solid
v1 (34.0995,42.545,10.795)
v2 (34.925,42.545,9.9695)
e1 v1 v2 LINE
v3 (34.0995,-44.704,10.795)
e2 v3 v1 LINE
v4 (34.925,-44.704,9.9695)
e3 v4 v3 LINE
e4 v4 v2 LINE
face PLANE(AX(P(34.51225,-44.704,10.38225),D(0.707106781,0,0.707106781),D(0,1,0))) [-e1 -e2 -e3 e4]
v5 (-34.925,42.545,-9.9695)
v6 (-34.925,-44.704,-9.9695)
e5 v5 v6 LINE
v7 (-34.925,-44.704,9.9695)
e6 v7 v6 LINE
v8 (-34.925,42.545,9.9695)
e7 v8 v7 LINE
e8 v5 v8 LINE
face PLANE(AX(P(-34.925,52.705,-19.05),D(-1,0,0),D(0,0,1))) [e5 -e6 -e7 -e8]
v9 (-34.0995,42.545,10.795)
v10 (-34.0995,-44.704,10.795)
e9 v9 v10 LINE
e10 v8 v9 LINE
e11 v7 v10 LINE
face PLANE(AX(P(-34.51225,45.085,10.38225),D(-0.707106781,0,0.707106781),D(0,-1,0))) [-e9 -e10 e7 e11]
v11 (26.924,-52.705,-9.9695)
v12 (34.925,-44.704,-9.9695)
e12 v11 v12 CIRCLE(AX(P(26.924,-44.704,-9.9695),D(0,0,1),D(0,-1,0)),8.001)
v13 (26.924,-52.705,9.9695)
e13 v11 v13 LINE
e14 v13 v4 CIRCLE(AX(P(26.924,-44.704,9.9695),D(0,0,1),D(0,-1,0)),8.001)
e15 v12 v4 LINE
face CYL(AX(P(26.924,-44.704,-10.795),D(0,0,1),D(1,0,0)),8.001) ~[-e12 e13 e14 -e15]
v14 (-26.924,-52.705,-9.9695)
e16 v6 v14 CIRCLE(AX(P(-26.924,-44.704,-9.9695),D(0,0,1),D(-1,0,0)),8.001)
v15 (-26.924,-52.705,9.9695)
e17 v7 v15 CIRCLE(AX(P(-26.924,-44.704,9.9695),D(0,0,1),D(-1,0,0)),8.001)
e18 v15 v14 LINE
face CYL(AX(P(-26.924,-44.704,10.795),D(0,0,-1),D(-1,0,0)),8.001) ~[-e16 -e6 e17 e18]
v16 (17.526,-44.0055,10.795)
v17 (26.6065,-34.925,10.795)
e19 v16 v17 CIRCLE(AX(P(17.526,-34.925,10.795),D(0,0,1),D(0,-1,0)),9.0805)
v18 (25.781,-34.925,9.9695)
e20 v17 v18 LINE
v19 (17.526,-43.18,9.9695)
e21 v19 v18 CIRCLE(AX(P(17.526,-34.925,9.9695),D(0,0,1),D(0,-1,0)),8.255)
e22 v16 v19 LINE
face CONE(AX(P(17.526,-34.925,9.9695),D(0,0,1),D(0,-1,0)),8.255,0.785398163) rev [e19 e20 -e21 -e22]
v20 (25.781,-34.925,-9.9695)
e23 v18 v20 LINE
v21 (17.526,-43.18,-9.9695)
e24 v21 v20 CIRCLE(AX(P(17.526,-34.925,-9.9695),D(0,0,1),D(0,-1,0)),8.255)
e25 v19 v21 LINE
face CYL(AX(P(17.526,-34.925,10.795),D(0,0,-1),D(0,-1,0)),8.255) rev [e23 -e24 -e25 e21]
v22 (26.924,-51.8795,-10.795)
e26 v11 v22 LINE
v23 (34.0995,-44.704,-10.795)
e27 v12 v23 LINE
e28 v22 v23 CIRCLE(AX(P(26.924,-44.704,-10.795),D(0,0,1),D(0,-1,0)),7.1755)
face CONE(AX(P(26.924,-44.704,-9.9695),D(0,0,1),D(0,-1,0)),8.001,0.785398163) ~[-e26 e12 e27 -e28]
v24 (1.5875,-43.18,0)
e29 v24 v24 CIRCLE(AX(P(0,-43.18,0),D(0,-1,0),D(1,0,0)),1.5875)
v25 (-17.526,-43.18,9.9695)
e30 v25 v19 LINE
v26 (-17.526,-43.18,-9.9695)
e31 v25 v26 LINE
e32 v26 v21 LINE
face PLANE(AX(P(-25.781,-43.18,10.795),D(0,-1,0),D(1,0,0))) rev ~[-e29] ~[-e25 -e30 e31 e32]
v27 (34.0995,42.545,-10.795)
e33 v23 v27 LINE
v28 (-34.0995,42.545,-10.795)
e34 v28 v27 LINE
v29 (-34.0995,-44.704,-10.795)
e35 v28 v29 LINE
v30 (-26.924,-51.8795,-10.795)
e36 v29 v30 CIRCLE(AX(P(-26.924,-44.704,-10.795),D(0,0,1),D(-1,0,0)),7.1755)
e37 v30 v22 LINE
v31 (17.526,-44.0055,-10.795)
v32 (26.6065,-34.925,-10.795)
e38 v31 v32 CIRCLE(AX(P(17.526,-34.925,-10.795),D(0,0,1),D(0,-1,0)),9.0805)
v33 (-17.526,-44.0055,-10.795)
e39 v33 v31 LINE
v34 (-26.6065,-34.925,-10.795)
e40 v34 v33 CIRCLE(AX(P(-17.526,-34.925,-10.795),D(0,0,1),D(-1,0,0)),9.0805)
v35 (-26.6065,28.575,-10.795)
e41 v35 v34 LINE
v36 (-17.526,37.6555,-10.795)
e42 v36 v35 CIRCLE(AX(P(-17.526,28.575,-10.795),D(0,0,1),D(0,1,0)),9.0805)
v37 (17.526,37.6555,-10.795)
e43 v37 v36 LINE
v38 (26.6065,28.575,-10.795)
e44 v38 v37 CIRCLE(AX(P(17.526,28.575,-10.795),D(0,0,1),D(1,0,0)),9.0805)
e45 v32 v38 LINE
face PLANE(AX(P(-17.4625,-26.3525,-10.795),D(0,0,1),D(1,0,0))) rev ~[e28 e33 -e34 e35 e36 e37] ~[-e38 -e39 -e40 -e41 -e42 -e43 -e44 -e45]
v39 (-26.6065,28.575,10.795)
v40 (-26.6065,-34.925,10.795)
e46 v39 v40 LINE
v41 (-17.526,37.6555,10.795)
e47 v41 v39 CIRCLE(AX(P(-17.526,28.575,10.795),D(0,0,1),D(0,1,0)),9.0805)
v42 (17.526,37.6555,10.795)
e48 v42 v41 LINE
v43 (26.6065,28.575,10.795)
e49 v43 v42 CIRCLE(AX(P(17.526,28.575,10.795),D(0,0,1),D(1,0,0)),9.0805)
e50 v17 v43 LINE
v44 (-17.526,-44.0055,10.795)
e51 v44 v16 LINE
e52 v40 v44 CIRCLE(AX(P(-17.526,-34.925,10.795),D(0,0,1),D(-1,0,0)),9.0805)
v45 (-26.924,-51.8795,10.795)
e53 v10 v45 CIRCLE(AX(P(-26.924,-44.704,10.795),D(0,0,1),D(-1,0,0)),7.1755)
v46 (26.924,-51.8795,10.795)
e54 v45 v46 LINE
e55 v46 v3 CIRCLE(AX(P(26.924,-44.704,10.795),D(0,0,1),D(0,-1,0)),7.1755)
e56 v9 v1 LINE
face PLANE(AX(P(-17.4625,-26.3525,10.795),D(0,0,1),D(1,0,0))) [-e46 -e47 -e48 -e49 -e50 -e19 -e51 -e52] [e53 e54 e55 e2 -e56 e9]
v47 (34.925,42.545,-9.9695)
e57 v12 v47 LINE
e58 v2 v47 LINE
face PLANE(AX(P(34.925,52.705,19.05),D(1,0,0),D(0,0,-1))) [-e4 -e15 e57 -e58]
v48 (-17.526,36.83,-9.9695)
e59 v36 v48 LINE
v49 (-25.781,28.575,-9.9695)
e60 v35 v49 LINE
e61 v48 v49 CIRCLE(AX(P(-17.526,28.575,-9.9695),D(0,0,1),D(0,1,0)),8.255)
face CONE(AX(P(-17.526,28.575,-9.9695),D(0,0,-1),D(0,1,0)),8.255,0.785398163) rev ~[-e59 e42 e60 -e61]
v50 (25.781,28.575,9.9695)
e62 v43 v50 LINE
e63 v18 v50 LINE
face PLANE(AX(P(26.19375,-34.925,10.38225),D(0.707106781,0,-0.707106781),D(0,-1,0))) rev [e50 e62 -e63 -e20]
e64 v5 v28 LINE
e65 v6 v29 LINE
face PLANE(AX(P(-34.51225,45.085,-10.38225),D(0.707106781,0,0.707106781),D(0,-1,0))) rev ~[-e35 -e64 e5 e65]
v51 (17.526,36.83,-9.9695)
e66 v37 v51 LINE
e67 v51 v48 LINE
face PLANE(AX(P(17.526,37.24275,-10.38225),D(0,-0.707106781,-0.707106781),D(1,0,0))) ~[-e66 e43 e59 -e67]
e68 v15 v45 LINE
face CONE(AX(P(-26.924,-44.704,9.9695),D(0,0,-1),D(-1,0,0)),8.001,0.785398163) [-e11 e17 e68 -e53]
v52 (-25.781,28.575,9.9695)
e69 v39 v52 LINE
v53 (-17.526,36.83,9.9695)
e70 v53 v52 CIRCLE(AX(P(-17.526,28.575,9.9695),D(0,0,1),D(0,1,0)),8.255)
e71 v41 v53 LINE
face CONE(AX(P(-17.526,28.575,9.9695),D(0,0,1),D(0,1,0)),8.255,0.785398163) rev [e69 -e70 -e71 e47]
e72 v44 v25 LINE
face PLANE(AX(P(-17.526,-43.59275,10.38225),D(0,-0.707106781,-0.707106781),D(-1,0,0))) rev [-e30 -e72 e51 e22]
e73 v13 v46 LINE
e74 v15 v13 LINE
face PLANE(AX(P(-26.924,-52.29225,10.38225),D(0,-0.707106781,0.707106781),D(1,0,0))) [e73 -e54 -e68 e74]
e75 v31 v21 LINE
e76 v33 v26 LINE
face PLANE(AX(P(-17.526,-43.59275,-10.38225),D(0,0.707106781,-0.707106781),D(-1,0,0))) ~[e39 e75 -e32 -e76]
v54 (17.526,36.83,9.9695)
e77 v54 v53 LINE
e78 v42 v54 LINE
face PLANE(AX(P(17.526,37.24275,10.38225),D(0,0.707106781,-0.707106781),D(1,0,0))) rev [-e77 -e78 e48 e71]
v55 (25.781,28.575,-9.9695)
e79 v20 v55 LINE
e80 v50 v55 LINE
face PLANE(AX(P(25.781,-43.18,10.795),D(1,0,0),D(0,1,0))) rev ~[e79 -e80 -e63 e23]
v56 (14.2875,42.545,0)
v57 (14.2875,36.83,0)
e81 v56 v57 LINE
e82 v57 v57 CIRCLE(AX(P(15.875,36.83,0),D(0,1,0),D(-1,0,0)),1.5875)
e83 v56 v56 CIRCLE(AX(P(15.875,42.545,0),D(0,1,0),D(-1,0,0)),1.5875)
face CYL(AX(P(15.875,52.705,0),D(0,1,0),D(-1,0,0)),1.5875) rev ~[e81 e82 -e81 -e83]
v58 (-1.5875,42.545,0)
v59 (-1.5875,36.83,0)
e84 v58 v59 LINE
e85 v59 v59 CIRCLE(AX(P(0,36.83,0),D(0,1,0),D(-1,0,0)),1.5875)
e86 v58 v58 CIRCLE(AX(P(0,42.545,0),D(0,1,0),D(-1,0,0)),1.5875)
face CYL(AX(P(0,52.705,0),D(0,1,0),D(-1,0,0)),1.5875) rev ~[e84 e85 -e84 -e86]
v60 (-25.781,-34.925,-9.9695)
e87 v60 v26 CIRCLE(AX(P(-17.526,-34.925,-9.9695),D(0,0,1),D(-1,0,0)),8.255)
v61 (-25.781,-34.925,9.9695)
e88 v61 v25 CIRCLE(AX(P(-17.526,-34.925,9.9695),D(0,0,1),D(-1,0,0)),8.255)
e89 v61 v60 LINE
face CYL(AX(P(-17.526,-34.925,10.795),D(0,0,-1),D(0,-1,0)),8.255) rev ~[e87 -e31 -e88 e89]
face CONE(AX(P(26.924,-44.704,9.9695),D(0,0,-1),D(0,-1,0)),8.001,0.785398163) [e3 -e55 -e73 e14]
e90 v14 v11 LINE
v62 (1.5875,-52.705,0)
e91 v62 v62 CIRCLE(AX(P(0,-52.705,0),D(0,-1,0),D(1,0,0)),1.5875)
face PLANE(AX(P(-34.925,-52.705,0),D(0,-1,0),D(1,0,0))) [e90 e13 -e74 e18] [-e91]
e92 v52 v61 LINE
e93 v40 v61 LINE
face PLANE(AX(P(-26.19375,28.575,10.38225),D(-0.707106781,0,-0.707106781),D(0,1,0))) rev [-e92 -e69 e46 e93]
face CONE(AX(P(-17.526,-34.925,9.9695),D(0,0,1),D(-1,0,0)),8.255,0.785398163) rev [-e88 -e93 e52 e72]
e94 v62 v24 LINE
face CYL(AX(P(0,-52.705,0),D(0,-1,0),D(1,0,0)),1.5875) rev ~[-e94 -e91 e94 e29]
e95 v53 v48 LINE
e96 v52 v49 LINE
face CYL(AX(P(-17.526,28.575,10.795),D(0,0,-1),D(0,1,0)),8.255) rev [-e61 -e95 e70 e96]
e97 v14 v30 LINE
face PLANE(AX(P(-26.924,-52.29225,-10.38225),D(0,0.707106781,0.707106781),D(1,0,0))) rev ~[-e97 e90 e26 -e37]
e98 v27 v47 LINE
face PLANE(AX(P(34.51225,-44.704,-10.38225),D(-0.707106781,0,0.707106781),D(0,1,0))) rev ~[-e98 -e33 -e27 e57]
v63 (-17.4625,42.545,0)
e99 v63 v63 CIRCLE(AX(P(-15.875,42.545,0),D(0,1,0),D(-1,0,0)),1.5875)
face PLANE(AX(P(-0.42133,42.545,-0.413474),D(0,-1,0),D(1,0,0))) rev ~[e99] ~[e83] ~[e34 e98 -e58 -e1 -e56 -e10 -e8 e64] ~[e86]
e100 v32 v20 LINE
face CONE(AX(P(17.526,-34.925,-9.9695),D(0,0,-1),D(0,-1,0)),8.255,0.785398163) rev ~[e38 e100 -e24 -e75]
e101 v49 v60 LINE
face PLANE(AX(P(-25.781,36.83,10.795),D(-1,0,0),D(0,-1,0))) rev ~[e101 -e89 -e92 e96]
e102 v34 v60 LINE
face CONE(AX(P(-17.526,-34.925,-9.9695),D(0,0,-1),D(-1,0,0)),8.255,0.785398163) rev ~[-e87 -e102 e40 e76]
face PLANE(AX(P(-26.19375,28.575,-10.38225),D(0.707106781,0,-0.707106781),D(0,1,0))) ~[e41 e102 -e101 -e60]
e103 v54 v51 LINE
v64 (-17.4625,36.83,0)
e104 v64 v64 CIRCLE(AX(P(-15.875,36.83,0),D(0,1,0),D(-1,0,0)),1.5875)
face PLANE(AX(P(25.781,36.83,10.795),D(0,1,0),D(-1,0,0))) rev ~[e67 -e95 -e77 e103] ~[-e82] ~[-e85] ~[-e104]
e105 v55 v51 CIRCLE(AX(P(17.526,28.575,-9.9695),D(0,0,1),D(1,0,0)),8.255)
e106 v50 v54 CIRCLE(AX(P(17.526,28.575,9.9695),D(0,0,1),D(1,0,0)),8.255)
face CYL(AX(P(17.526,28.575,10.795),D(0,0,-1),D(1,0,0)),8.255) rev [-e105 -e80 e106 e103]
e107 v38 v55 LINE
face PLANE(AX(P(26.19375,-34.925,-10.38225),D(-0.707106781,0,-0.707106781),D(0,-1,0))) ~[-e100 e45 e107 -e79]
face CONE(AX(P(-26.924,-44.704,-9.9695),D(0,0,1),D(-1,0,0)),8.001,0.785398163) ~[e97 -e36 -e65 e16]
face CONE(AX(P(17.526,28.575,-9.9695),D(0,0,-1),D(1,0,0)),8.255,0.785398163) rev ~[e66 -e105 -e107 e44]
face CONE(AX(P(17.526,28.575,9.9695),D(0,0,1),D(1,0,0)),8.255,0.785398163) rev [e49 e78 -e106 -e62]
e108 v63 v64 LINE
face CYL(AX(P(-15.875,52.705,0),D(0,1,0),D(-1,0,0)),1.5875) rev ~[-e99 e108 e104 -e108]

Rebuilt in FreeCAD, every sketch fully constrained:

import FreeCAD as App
import Part
import Sketcher
from FreeCAD import Vector
Q = App.Units.Quantity


def edges_at(feature, points):
    """Names of the edges that pass closest to the given points."""
    edges = feature.Shape.Edges
    near = lambda p: min(range(len(edges)), key=lambda i: edges[i].distToShape(Part.Vertex(*p))[0])
    return sorted({f"Edge{near(p) + 1}" for p in points})


def add_polygon(sketch, points):
    """Adds a closed chain of lines whose ends are joined by coincident constraints."""
    first, n = sketch.GeometryCount, len(points)
    for a, b in zip(points, points[1:] + points[:1]):
        sketch.addGeometry(Part.LineSegment(App.Vector(*a, 0), App.Vector(*b, 0)), False)
    for i in range(n):
        sketch.addConstraint(Sketcher.Constraint("Coincident", first + i, 2, first + (i + 1) % n, 1))

doc = App.newDocument("Part")
body = doc.addObject("PartDesign::Body", "Body")

# Sketch on XY plane
sketch1 = body.newObject("Sketcher::SketchObject", "Sketch")
sketch1.AttachmentSupport = (doc.getObject("XY_Plane"), [""])
sketch1.MapMode = "FlatFace"
add_polygon(sketch1, [(-34.925, -52.705), (34.925, -52.705), (34.925, 52.705), (-34.925, 52.705)])  # lines 0-3
sketch1.addConstraint([
    Sketcher.Constraint("Horizontal", 0),
    Sketcher.Constraint("Vertical", 1),
    Sketcher.Constraint("Horizontal", 2),
    Sketcher.Constraint("Vertical", 3),
    Sketcher.Constraint("Symmetric", 0, 2, 2, 2, -1, 1),
    Sketcher.Constraint("DistanceX", 0, 1, 0, 2, Q("2.75 in")),
    Sketcher.Constraint("DistanceY", 1, 1, 1, 2, Q("4.15 in")),
])
pad1 = body.newObject("PartDesign::Pad", "Pad")
pad1.Profile = sketch1
pad1.Length = Q("0.425 in")

# Sketch on XY plane
sketch2 = body.newObject("Sketcher::SketchObject", "Sketch001")
sketch2.AttachmentSupport = (doc.getObject("XY_Plane"), [""])
sketch2.MapMode = "FlatFace"
add_polygon(sketch2, [(-34.925, -52.705), (34.925, -52.705), (34.925, 52.705), (-34.925, 52.705)])  # lines 0-3
sketch2.addConstraint([
    Sketcher.Constraint("Horizontal", 0),
    Sketcher.Constraint("Vertical", 1),
    Sketcher.Constraint("Horizontal", 2),
    Sketcher.Constraint("Vertical", 3),
    Sketcher.Constraint("Symmetric", 0, 2, 2, 2, -1, 1),
    Sketcher.Constraint("DistanceX", 0, 1, 0, 2, Q("2.75 in")),
    Sketcher.Constraint("DistanceY", 1, 1, 1, 2, Q("4.15 in")),
])
pad2 = body.newObject("PartDesign::Pad", "Pad001")
pad2.Profile = sketch2
pad2.Length = Q("0.425 in")
pad2.Reversed = True

# Sketch on XY plane
sketch3 = body.newObject("Sketcher::SketchObject", "Sketch002")
sketch3.AttachmentSupport = (doc.getObject("XY_Plane"), [""])
sketch3.MapMode = "FlatFace"
sketch3.AttachmentOffset = App.Placement(Vector(0, 0, 0.425 * 25.4), App.Rotation())
add_polygon(sketch3, [(-25.781, -43.18), (25.781, -43.18), (25.781, 36.83), (-25.781, 36.83)])  # lines 0-3
sketch3.addConstraint([
    Sketcher.Constraint("Horizontal", 0),
    Sketcher.Constraint("Vertical", 1),
    Sketcher.Constraint("Horizontal", 2),
    Sketcher.Constraint("Vertical", 3),
    Sketcher.Constraint("DistanceX", 0, 1, 0, 2, Q("2.03 in")),
    Sketcher.Constraint("DistanceY", 1, 1, 1, 2, Q("3.15 in")),
    Sketcher.Constraint("DistanceY", 0, 2, -1, 1, Q("1.7 in")),
    Sketcher.Constraint("DistanceX", -1, 1, 0, 2, Q("1.015 in")),
])
pocket1 = body.newObject("PartDesign::Pocket", "Pocket")
pocket1.Profile = sketch3
pocket1.Length = Q("1 in")
doc.recompute()

fillet = body.newObject("PartDesign::Fillet", "Fillet")
fillet.Base = (pocket1, edges_at(pocket1, [
    (-25.781, 36.83, 0),
    (25.781, 36.83, 0),
    (-25.781, -43.18, 0),
    (25.781, -43.18, 0),
]))
fillet.Radius = Q("0.325 in")

# Sketch on XZ plane
sketch4 = body.newObject("Sketcher::SketchObject", "Sketch003")
sketch4.AttachmentSupport = (doc.getObject("XZ_Plane"), [""])
sketch4.MapMode = "FlatFace"
sketch4.AttachmentOffset = App.Placement(Vector(0, 0, -2.075 * 25.4), App.Rotation())
add_polygon(sketch4, [(-34.925, -19.05), (-34.925, 19.05), (34.925, 19.05), (34.925, -19.05)])  # lines 0-3
sketch4.addConstraint([
    Sketcher.Constraint("Vertical", 0),
    Sketcher.Constraint("Horizontal", 1),
    Sketcher.Constraint("Vertical", 2),
    Sketcher.Constraint("Horizontal", 3),
    Sketcher.Constraint("Symmetric", 0, 2, 2, 2, -1, 1),
    Sketcher.Constraint("DistanceY", 0, 1, 0, 2, Q("1.5 in")),
    Sketcher.Constraint("DistanceX", 1, 1, 1, 2, Q("2.75 in")),
])
pad3 = body.newObject("PartDesign::Pad", "Pad002")
pad3.Profile = sketch4
pad3.Length = Q("0.2 in")

# Sketch on XZ plane
sketch5 = body.newObject("Sketcher::SketchObject", "Sketch004")
sketch5.AttachmentSupport = (doc.getObject("XZ_Plane"), [""])
sketch5.MapMode = "FlatFace"
sketch5.AttachmentOffset = App.Placement(Vector(0, 0, -1.875 * 25.4), App.Rotation())
sketch5.addGeometry([
    Part.Circle(Vector(22.225, 15.24, 0), Vector(0, 0, 1), 1.5875),  # 0
    Part.Circle(Vector(0, 15.24, 0), Vector(0, 0, 1), 1.5875),  # 1
    Part.Circle(Vector(0, -15.24, 0), Vector(0, 0, 1), 1.5875),  # 2
    Part.Circle(Vector(22.225, -15.24, 0), Vector(0, 0, 1), 1.5875),  # 3
    Part.Circle(Vector(-22.225, 15.24, 0), Vector(0, 0, 1), 1.5875),  # 4
    Part.Circle(Vector(-22.225, -15.24, 0), Vector(0, 0, 1), 1.5875),  # 5
], False)
sketch5.addConstraint([
    Sketcher.Constraint("Equal", 0, 1),
    Sketcher.Constraint("Equal", 1, 2),
    Sketcher.Constraint("Equal", 2, 3),
    Sketcher.Constraint("Equal", 3, 4),
    Sketcher.Constraint("Equal", 4, 5),
    Sketcher.Constraint("Symmetric", 1, 3, 2, 3, -1, 1),
    Sketcher.Constraint("Symmetric", 3, 3, 4, 3, -1, 1),
    Sketcher.Constraint("Symmetric", 0, 3, 5, 3, -1, 1),
    Sketcher.Constraint("Symmetric", 0, 3, 4, 3, -2),
    Sketcher.Constraint("PointOnObject", 1, 3, -2),
    Sketcher.Constraint("Horizontal", 0, 3, 1, 3),
    Sketcher.Constraint("Diameter", 0, Q("0.125 in")),
    Sketcher.Constraint("DistanceY", -1, 1, 0, 3, Q("0.6 in")),
    Sketcher.Constraint("DistanceX", 4, 3, 0, 3, Q("1.75 in")),
])
pocket2 = body.newObject("PartDesign::Pocket", "Pocket001")
pocket2.Profile = sketch5
pocket2.Length = Q("2 in")

# Sketch on YZ plane
sketch6 = body.newObject("Sketcher::SketchObject", "Sketch005")
sketch6.AttachmentSupport = (doc.getObject("YZ_Plane"), [""])
sketch6.MapMode = "FlatFace"
sketch6.AttachmentOffset = App.Placement(Vector(0, 0, -1.375 * 25.4), App.Rotation())
sketch6.addGeometry(Part.Circle(Vector(52.705, 0, 0), Vector(0, 0, 1), 7.493), False)
sketch6.addConstraint([
    Sketcher.Constraint("PointOnObject", 0, 3, -1),
    Sketcher.Constraint("Diameter", 0, Q("0.59 in")),
    Sketcher.Constraint("DistanceX", -1, 1, 0, 3, Q("2.075 in")),
])
pocket3 = body.newObject("PartDesign::Pocket", "Pocket002")
pocket3.Profile = sketch6
pocket3.Length = Q("3 in")
pocket3.Reversed = True
doc.recompute()

fillet2 = body.newObject("PartDesign::Fillet", "Fillet001")
fillet2.Base = (pocket3, edges_at(pocket3, [(34.925, -52.705, 0), (-34.925, -52.705, 0)]))
fillet2.Radius = Q("0.315 in")

# Sketch on XZ plane
sketch7 = body.newObject("Sketcher::SketchObject", "Sketch006")
sketch7.AttachmentSupport = (doc.getObject("XZ_Plane"), [""])
sketch7.MapMode = "FlatFace"
sketch7.AttachmentOffset = App.Placement(Vector(0, 0, -2.075 * 25.4), App.Rotation())
sketch7.addGeometry([
    Part.Circle(Vector(0, 0, 0), Vector(0, 0, 1), 1.5875),
    Part.Circle(Vector(15.875, 0, 0), Vector(0, 0, 1), 1.5875),
    Part.Circle(Vector(-15.875, 0, 0), Vector(0, 0, 1), 1.5875),
], False)
sketch7.addConstraint([
    Sketcher.Constraint("Coincident", 0, 3, -1, 1),
    Sketcher.Constraint("Equal", 0, 1),
    Sketcher.Constraint("Equal", 1, 2),
    Sketcher.Constraint("Symmetric", 1, 3, 2, 3, -1, 1),
    Sketcher.Constraint("PointOnObject", 1, 3, -1),
    Sketcher.Constraint("Diameter", 0, Q("0.125 in")),
    Sketcher.Constraint("DistanceX", 2, 3, 1, 3, Q("1.25 in")),
])
pocket4 = body.newObject("PartDesign::Pocket", "Pocket003")
pocket4.Profile = sketch7
pocket4.Length = Q("1 in")
pocket4.Reversed = True
doc.recompute()

chamfer = body.newObject("PartDesign::Chamfer", "Chamfer")
chamfer.Base = (pocket4, edges_at(pocket4, [(17.462, 45.212, 0), (1.587, 45.212, 0), (-14.287, 45.212, 0)]))
chamfer.Size = Q("0.03 in")
doc.recompute()

fillet3 = body.newObject("PartDesign::Fillet", "Fillet002")
fillet3.Base = (chamfer, edges_at(chamfer, [(0, 47.625, -10.795), (0, 47.625, 10.795)]))
fillet3.Radius = Q("0.1 in")
doc.recompute()

chamfer2 = body.newObject("PartDesign::Chamfer", "Chamfer001")
chamfer2.Base = (fillet3, edges_at(fillet3, [
    (25.781, -3.175, 10.795),
    (34.925, 0.191, 10.795),
    (34.925, 0.191, -10.795),
    (25.781, -3.175, -10.795),
    (0, 47.625, -19.05),
    (0, 47.625, 19.05),
]))
chamfer2.Size = Q("0.0325 in")

# Sketch on XZ plane
sketch8 = body.newObject("Sketcher::SketchObject", "Sketch007")
sketch8.AttachmentSupport = (doc.getObject("XZ_Plane"), [""])
sketch8.MapMode = "FlatFace"
sketch8.AttachmentOffset = App.Placement(Vector(0, 0, -1.675 * 25.4), App.Rotation())
add_polygon(sketch8, [(-37.096098, 21.261701), (-37.096098, -22.088649), (36.253437, -22.088649), (36.253437, 21.261701)])  # lines 0-3
sketch8.addConstraint([
    Sketcher.Constraint("Vertical", 0),
    Sketcher.Constraint("Horizontal", 1),
    Sketcher.Constraint("Vertical", 2),
    Sketcher.Constraint("Horizontal", 3),
    Sketcher.Constraint("DistanceY", 0, 2, 0, 1, Q("43.35035 mm")),
    Sketcher.Constraint("DistanceX", 0, 2, -1, 1, Q("37.096098 mm")),
    Sketcher.Constraint("DistanceY", -1, 1, 2, 2, Q("21.261701 mm")),
    Sketcher.Constraint("DistanceX", 1, 1, 1, 2, Q("73.349536 mm")),
])
pocket5 = body.newObject("PartDesign::Pocket", "Pocket004")
pocket5.Profile = sketch8
pocket5.Length = Q("1 in")

# Sketch on XZ plane
sketch9 = body.newObject("Sketcher::SketchObject", "Sketch008")
sketch9.AttachmentSupport = (doc.getObject("XZ_Plane"), [""])
sketch9.MapMode = "FlatFace"
sketch9.AttachmentOffset = App.Placement(Vector(0, 0, 2.075 * 25.4), App.Rotation())
sketch9.addGeometry(Part.Circle(Vector(0, 0, 0), Vector(0, 0, 1), 1.5875), False)
sketch9.addConstraint([
    Sketcher.Constraint("Coincident", 0, 3, -1, 1),
    Sketcher.Constraint("Diameter", 0, Q("0.125 in")),
])
pocket6 = body.newObject("PartDesign::Pocket", "Pocket005")
pocket6.Profile = sketch9
pocket6.Length = Q("1 in")

doc.recompute()
